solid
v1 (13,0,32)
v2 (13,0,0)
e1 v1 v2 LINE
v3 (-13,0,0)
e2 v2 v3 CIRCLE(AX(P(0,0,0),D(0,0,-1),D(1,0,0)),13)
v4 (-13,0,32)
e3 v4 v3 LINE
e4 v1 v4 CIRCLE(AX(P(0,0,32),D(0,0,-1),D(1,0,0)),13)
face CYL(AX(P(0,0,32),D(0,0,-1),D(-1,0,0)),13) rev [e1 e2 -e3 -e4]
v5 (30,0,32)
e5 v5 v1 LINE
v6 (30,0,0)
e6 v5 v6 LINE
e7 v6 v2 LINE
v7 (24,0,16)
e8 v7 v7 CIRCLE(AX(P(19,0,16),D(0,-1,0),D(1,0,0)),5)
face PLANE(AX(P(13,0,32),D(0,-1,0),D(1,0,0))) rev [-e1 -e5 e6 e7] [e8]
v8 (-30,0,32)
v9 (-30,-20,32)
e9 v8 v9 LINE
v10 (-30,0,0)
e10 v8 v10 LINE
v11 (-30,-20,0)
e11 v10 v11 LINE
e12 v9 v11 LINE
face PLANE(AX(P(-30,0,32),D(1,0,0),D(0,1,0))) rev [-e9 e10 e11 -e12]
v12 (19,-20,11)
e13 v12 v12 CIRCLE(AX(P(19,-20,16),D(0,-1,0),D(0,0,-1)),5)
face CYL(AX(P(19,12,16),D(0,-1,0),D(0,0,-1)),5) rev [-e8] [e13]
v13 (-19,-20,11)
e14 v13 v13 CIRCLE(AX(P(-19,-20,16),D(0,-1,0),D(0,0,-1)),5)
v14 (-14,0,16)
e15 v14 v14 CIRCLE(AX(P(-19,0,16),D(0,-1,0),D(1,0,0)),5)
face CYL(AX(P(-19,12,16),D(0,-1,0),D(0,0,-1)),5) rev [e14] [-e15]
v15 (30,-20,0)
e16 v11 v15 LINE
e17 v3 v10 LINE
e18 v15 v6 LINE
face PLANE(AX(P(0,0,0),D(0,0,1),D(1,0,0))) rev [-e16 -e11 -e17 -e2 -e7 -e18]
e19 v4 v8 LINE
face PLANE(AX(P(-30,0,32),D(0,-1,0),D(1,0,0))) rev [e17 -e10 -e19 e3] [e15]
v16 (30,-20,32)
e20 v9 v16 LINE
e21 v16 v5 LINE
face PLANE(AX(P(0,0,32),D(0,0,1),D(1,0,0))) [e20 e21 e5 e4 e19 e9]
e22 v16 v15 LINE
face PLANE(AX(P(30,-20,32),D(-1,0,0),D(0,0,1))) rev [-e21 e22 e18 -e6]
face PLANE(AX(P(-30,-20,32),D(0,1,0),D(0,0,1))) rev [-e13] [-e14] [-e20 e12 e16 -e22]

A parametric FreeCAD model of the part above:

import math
import FreeCAD as App
import Part
import Sketcher

V = App.Vector

doc = App.newDocument("Part")
body = doc.addObject("PartDesign::Body", "Body")

# Sketch on XY plane
sketch1 = body.newObject("Sketcher::SketchObject", "Sketch")
sketch1.AttachmentSupport = (doc.getObject("XY_Plane"), [""])
sketch1.MapMode = "FlatFace"
sketch1.addGeometry([
    Part.LineSegment(V(-13, 0, 0), V(-30, 0, 0)),  # 0
    Part.LineSegment(V(-30, 0, 0), V(-30, -20, 0)),  # 1
    Part.LineSegment(V(-30, -20, 0), V(30, -20, 0)),  # 2
    Part.LineSegment(V(30, -20, 0), V(30, 0, 0)),  # 3
    Part.LineSegment(V(30, 0, 0), V(13, 0, 0)),  # 4
    Part.ArcOfCircle(Part.Circle(V(0, 0, 0), V(0, 0, 1), 13), math.radians(180), math.radians(360)),  # 5
], False)
sketch1.addConstraint([
    Sketcher.Constraint("Coincident", 0, 2, 1, 1),
    Sketcher.Constraint("Coincident", 1, 2, 2, 1),
    Sketcher.Constraint("Coincident", 2, 2, 3, 1),
    Sketcher.Constraint("Coincident", 3, 2, 4, 1),
    Sketcher.Constraint("Coincident", 4, 2, 5, 2),
    Sketcher.Constraint("Coincident", 5, 1, 0, 1),
    Sketcher.Constraint("Horizontal", 0),
    Sketcher.Constraint("Vertical", 1),
    Sketcher.Constraint("Horizontal", 2),
    Sketcher.Constraint("Vertical", 3),
    Sketcher.Constraint("Horizontal", 4),
    Sketcher.Constraint("Coincident", 5, 3, -1, 1),
    Sketcher.Constraint("Symmetric", 0, 2, 3, 2, -1, 1),
    Sketcher.Constraint("PointOnObject", 0, 2, -1),
    Sketcher.Constraint("Radius", 5, 13.0),
    Sketcher.Constraint("DistanceX", 0, 2, 0, 1, 17.0),
    Sketcher.Constraint("DistanceY", 1, 2, 1, 1, 20.0),
])
pad1 = body.newObject("PartDesign::Pad", "Pad")
pad1.Profile = sketch1
pad1.Length = 32

# Sketch on XZ plane
sketch2 = body.newObject("Sketcher::SketchObject", "Sketch001")
sketch2.AttachmentSupport = (doc.getObject("XZ_Plane"), [""])
sketch2.MapMode = "FlatFace"
sketch2.AttachmentOffset = App.Placement(V(0, 0, 20), App.Rotation())
sketch2.addGeometry([
    Part.Circle(V(-19, 16, 0), V(0, 0, 1), 5),
    Part.Circle(V(19, 16, 0), V(0, 0, 1), 5),
], False)
sketch2.addConstraint([
    Sketcher.Constraint("Equal", 0, 1),
    Sketcher.Constraint("Symmetric", 0, 3, 1, 3, -2),
    Sketcher.Constraint("Diameter", 0, 10.0),
    Sketcher.Constraint("DistanceX", 0, 3, -1, 1, 19.0),
    Sketcher.Constraint("DistanceY", -1, 1, 0, 3, 16.0),
])
pocket1 = body.newObject("PartDesign::Pocket", "Pocket")
pocket1.Profile = sketch2
pocket1.Length = 32

doc.recompute()
